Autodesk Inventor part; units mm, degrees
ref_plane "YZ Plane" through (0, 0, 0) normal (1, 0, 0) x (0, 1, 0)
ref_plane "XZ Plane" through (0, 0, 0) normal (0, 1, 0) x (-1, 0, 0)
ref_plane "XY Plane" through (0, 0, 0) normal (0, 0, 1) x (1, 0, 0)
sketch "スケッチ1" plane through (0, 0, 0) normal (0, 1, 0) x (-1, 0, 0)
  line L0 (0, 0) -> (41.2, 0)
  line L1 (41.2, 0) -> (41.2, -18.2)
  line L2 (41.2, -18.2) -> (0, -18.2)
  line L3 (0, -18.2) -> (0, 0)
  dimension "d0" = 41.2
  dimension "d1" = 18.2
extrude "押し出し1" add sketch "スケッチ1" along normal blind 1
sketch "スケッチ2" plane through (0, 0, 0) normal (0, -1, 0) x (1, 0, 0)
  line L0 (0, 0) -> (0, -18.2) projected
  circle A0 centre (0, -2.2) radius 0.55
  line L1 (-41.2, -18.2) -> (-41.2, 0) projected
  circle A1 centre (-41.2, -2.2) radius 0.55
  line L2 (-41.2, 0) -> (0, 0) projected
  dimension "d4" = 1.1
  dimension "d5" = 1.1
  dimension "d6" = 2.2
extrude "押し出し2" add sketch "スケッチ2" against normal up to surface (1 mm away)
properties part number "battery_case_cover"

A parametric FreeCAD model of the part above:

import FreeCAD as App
import Part
import Sketcher

V = App.Vector

doc = App.newDocument("Part")
body = doc.addObject("PartDesign::Body", "Body")

# Sketch on XZ plane
sketch1 = body.newObject("Sketcher::SketchObject", "Sketch")
sketch1.AttachmentSupport = (doc.getObject("XZ_Plane"), [""])
sketch1.MapMode = "FlatFace"
sketch1.addGeometry(Part.LineSegment(V(-41, 0, 0), V(0, 0, 0)), False)
sketch1.addGeometry(Part.LineSegment(V(0, 0, 0), V(0, -18, 0)), False)
sketch1.addGeometry(Part.LineSegment(V(0, -18, 0), V(-41, -18, 0)), False)
sketch1.addGeometry(Part.LineSegment(V(-41, -18, 0), V(-41, 0, 0)), False)
sketch1.addConstraint(Sketcher.Constraint("Coincident", 0, 2, 1, 1))
sketch1.addConstraint(Sketcher.Constraint("Coincident", 1, 2, 2, 1))
sketch1.addConstraint(Sketcher.Constraint("Coincident", 2, 2, 3, 1))
sketch1.addConstraint(Sketcher.Constraint("Coincident", 3, 2, 0, 1))
sketch1.addConstraint(Sketcher.Constraint("Horizontal", 0))
sketch1.addConstraint(Sketcher.Constraint("Vertical", 1))
sketch1.addConstraint(Sketcher.Constraint("Horizontal", 2))
sketch1.addConstraint(Sketcher.Constraint("Vertical", 3))
sketch1.addConstraint(Sketcher.Constraint("Coincident", 0, 2, -1, 1))
sketch1.addConstraint(Sketcher.Constraint("DistanceX", 0, 1, 0, 2, 41.2))
sketch1.addConstraint(Sketcher.Constraint("DistanceY", 1, 2, 1, 1, 18.2))
pad1 = body.newObject("PartDesign::Pad", "Pad")
pad1.Profile = sketch1
pad1.Length = 1
pad1.Reversed = True

# Sketch on XZ plane
sketch2 = body.newObject("Sketcher::SketchObject", "Sketch001")
sketch2.AttachmentSupport = (doc.getObject("XZ_Plane"), [""])
sketch2.MapMode = "FlatFace"
sketch2.addGeometry(Part.Circle(V(0, -2.2, 0), V(0, 0, 1), 0.6), False)
sketch2.addGeometry(Part.Circle(V(-41.2, -2.2, 0), V(0, 0, 1), 0.6), False)
sketch2.addConstraint(Sketcher.Constraint("Equal", 0, 1))
sketch2.addConstraint(Sketcher.Constraint("PointOnObject", 0, 3, -2))
sketch2.addConstraint(Sketcher.Constraint("Horizontal", 0, 3, 1, 3))
sketch2.addConstraint(Sketcher.Constraint("Diameter", 0, 1.1))
sketch2.addConstraint(Sketcher.Constraint("DistanceY", 0, 3, -1, 1, 2.2))
sketch2.addConstraint(Sketcher.Constraint("DistanceX", 1, 3, -1, 1, 41.2))
pad2 = body.newObject("PartDesign::Pad", "Pad001")
pad2.Profile = sketch2
pad2.Length = 1
pad2.Reversed = True

doc.recompute()
